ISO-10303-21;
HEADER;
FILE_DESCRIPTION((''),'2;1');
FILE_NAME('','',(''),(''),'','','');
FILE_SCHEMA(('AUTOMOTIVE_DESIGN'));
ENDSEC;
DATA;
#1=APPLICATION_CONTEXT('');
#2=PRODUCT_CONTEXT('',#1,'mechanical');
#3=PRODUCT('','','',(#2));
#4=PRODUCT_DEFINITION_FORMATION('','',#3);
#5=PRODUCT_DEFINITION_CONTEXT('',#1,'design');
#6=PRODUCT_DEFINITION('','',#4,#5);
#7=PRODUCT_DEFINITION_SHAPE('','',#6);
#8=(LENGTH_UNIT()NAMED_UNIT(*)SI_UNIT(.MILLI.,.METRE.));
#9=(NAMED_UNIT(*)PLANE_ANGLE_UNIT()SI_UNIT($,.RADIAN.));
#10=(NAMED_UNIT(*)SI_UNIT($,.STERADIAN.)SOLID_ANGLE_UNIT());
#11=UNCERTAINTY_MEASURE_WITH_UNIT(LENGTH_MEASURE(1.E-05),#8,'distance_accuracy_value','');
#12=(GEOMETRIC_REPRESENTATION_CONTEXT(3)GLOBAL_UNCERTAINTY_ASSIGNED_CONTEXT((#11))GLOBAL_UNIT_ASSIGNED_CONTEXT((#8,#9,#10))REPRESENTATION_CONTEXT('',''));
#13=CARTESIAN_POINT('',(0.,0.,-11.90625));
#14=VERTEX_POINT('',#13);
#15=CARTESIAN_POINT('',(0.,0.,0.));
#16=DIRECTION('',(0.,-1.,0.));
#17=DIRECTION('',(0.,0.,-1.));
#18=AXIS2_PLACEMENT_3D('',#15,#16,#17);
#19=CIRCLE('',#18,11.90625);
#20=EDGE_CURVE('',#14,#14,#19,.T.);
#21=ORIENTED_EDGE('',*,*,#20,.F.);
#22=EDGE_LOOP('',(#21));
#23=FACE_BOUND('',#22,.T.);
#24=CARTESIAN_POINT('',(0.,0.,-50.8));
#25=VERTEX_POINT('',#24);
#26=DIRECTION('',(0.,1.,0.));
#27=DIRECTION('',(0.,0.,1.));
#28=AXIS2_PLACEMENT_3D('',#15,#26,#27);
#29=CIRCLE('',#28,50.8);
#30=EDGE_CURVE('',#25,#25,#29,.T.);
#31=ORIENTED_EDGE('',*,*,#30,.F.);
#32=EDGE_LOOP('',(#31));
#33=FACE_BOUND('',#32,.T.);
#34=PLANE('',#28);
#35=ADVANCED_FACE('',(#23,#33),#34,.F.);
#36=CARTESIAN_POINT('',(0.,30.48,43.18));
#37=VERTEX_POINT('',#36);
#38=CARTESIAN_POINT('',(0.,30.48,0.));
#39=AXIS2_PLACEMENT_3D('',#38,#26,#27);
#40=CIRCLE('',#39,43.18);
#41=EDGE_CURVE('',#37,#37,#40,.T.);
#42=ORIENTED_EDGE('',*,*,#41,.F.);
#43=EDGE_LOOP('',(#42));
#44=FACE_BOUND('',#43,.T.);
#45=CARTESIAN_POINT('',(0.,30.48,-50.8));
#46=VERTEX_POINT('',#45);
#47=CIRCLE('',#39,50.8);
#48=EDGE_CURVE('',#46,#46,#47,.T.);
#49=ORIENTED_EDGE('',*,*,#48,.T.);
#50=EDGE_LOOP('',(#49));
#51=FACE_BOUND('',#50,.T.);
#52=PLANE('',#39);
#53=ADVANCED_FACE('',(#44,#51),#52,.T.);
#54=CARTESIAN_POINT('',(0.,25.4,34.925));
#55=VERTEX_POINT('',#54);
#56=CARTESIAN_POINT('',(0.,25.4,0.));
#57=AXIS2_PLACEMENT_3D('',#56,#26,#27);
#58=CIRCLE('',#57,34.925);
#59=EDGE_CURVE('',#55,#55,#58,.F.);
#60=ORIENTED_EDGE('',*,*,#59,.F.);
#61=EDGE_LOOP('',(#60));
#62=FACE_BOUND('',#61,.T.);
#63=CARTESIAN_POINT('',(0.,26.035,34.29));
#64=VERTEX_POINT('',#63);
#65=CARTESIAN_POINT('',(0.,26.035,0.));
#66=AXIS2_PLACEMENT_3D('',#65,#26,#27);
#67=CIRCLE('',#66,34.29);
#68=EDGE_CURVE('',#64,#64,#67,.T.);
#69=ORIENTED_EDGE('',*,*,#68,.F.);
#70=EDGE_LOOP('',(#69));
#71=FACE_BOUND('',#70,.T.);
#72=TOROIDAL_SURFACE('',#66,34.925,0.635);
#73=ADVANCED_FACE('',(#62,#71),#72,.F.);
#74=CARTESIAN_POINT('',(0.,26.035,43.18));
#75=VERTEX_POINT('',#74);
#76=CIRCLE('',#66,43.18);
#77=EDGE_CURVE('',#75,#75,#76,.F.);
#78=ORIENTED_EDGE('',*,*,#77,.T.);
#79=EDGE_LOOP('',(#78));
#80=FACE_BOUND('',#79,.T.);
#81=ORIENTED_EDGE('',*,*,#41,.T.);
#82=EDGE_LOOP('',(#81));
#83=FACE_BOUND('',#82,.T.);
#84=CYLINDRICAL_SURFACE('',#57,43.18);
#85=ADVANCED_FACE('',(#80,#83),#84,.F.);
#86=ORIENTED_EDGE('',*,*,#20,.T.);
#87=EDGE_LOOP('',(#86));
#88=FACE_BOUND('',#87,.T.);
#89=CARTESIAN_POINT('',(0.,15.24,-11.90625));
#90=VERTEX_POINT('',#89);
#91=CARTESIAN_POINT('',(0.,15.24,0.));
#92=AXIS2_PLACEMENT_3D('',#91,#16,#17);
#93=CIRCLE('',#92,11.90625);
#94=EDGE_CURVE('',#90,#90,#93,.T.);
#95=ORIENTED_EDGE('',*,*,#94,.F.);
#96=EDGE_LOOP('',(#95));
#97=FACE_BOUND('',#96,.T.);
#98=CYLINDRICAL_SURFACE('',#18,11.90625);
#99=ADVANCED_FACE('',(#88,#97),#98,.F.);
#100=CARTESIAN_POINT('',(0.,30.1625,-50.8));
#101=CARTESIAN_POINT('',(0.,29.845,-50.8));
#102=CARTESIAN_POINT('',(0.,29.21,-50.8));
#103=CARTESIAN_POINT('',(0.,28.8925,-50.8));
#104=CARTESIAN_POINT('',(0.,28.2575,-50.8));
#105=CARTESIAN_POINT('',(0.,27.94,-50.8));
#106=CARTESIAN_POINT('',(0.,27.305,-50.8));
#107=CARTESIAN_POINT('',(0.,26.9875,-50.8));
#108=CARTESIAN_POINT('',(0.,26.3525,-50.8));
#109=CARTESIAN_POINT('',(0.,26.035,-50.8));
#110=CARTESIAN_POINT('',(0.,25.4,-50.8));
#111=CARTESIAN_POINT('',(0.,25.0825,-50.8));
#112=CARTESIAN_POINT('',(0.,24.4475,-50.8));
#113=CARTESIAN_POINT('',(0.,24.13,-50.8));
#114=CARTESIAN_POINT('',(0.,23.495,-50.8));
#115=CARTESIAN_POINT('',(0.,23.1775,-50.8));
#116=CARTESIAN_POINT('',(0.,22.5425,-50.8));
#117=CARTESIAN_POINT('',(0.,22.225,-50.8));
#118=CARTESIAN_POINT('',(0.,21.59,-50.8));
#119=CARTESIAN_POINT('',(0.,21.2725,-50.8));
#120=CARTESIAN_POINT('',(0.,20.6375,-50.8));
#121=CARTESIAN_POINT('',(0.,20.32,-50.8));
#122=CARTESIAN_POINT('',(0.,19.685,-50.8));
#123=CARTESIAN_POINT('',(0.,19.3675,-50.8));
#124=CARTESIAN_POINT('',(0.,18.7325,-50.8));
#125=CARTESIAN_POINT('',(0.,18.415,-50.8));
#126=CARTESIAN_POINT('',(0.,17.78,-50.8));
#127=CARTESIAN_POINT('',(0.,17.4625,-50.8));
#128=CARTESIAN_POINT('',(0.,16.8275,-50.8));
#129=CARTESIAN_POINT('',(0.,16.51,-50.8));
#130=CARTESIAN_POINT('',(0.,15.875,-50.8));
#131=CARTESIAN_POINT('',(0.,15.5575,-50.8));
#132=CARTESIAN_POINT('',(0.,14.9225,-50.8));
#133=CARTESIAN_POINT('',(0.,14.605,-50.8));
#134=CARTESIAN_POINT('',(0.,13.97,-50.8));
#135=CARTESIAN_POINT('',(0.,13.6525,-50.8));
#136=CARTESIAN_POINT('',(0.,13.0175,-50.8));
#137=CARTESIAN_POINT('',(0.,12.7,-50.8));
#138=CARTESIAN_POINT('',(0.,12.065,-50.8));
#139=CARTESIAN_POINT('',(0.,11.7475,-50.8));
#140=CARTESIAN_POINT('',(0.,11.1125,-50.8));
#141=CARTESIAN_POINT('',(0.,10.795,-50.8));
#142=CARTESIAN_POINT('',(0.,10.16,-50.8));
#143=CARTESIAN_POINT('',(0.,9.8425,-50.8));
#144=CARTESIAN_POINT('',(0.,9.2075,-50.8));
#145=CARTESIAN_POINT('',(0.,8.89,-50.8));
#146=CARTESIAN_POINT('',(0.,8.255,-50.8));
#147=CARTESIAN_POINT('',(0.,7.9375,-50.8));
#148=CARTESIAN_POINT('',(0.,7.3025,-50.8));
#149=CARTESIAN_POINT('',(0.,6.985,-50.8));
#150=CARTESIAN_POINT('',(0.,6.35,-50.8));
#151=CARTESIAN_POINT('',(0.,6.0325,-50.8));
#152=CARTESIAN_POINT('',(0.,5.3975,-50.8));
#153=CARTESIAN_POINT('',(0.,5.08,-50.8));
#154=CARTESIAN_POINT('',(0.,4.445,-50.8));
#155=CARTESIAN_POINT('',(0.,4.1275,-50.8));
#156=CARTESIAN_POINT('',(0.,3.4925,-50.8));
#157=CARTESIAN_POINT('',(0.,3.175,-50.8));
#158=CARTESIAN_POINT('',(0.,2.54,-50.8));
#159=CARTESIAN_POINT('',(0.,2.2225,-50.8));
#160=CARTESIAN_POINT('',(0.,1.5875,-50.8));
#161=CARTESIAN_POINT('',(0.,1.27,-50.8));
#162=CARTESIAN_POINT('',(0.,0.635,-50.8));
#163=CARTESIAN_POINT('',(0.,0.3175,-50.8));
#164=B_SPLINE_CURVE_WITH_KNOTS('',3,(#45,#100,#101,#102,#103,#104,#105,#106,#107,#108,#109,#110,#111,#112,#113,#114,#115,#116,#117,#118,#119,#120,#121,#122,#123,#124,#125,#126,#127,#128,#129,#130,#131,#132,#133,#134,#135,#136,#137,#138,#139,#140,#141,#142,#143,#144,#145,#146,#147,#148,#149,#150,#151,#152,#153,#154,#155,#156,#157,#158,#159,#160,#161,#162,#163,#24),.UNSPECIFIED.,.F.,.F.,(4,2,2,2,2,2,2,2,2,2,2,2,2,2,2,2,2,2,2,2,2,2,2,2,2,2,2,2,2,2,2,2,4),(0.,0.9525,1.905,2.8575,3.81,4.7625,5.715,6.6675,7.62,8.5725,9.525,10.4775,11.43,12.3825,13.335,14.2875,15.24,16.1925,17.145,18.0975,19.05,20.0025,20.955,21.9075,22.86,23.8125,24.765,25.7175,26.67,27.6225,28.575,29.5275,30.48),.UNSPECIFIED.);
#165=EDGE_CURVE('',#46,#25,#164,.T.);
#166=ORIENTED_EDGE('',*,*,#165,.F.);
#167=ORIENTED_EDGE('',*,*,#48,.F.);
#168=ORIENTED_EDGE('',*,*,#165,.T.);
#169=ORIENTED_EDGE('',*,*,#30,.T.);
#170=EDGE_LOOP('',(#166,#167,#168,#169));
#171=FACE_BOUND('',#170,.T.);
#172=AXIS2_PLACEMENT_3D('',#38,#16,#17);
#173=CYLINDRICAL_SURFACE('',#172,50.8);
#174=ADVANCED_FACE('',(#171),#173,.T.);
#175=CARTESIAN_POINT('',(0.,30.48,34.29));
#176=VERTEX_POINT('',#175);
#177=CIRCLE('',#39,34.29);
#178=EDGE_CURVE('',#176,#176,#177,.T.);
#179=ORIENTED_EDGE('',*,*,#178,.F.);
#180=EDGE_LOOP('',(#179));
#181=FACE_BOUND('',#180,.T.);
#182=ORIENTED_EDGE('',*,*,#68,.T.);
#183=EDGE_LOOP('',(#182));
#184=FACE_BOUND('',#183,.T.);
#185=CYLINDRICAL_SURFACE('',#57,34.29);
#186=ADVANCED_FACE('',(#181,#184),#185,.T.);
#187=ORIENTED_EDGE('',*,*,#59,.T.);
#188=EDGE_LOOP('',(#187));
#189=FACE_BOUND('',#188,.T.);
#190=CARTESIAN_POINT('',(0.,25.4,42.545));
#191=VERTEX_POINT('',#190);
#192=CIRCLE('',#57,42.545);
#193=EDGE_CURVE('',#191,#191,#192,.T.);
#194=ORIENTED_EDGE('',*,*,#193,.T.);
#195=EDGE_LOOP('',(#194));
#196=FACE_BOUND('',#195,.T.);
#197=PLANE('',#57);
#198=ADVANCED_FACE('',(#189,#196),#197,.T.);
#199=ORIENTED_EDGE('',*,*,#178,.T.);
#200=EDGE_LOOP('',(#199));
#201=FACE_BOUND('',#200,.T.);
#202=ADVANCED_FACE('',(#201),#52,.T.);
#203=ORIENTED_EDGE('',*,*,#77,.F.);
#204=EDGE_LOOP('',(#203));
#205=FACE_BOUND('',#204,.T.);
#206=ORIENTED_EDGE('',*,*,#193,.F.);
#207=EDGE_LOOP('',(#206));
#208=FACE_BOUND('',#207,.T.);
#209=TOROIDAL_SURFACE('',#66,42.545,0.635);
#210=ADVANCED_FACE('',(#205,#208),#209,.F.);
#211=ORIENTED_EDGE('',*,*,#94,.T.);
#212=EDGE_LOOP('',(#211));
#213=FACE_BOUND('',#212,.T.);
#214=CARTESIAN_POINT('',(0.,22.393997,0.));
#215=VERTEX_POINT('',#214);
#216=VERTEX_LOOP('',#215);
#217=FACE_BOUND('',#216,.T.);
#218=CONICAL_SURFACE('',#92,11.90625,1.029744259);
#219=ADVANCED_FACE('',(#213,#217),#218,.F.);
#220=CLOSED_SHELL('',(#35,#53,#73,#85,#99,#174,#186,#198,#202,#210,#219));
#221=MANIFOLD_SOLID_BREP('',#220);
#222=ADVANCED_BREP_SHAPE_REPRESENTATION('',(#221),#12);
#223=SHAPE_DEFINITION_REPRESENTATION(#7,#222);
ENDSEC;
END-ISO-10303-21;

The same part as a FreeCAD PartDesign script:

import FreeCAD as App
import Part
import Sketcher
Q = App.Units.Quantity


def edges_at(feature, points):
    """Names of the edges that pass closest to the given points."""
    edges = feature.Shape.Edges
    near = lambda p: min(range(len(edges)), key=lambda i: edges[i].distToShape(Part.Vertex(*p))[0])
    return sorted({f"Edge{near(p) + 1}" for p in points})

doc = App.newDocument("Part")
body = doc.addObject("PartDesign::Body", "Body")

# Sketch on XZ plane
sketch1 = body.newObject("Sketcher::SketchObject", "Sketch")
sketch1.AttachmentSupport = (doc.getObject("XZ_Plane"), [""])
sketch1.MapMode = "FlatFace"
sketch1.addGeometry(Part.Circle(App.Vector(0, 0, 0), App.Vector(0, 0, 1), 51), False)
sketch1.addConstraint([
    Sketcher.Constraint("Coincident", 0, 3, -1, 1),
    Sketcher.Constraint("Diameter", 0, Q("4 in")),
])
pad1 = body.newObject("PartDesign::Pad", "Pad")
pad1.Profile = sketch1
pad1.Length = Q("1.2 in")
pad1.Reversed = True

# Sketch on XZ plane
sketch2 = body.newObject("Sketcher::SketchObject", "Sketch001")
sketch2.AttachmentSupport = (doc.getObject("XZ_Plane"), [""])
sketch2.MapMode = "FlatFace"
sketch2.addGeometry(Part.Circle(App.Vector(0, 0, 0), App.Vector(0, 0, 1), 12), False)
sketch2.addConstraint([
    Sketcher.Constraint("Coincident", 0, 3, -1, 1),
    Sketcher.Constraint("Diameter", 0, Q("0.9375 in")),
])
doc.recompute()
hole = body.newObject("PartDesign::Hole", "Hole")
hole.Profile = sketch2
hole.ThreadType = "None"
hole.Diameter = Q("0.9375 in")
hole.DepthType = "Dimension"
hole.Depth = Q("0.6 in")
hole.DrillPoint = "Angled"
hole.DrillPointAngle = 118

# Sketch on XZ plane
sketch3 = body.newObject("Sketcher::SketchObject", "Sketch002")
sketch3.AttachmentSupport = (doc.getObject("XZ_Plane"), [""])
sketch3.MapMode = "FlatFace"
sketch3.AttachmentOffset = App.Placement(App.Vector(0, 0, -1.2 * 25.4), App.Rotation())
sketch3.addGeometry([
    Part.Circle(App.Vector(0, 0, 0), App.Vector(0, 0, 1), 43),
    Part.Circle(App.Vector(0, 0, 0), App.Vector(0, 0, 1), 34),
], False)
sketch3.addConstraint([
    Sketcher.Constraint("Coincident", 0, 3, -1, 1),
    Sketcher.Constraint("Coincident", 1, 3, -1, 1),
    Sketcher.Constraint("Diameter", 0, Q("3.4 in")),
    Sketcher.Constraint("Diameter", 1, Q("2.7 in")),
])
pocket1 = body.newObject("PartDesign::Pocket", "Pocket")
pocket1.Profile = sketch3
pocket1.Length = Q("0.2 in")
pocket1.Reversed = True
doc.recompute()

fillet = body.newObject("PartDesign::Fillet", "Fillet")
fillet.Base = (pocket1, edges_at(pocket1, [(0, 25.4, -43.18), (0, 25.4, -34.29)]))
fillet.Radius = Q("0.025 in")

doc.recompute()
